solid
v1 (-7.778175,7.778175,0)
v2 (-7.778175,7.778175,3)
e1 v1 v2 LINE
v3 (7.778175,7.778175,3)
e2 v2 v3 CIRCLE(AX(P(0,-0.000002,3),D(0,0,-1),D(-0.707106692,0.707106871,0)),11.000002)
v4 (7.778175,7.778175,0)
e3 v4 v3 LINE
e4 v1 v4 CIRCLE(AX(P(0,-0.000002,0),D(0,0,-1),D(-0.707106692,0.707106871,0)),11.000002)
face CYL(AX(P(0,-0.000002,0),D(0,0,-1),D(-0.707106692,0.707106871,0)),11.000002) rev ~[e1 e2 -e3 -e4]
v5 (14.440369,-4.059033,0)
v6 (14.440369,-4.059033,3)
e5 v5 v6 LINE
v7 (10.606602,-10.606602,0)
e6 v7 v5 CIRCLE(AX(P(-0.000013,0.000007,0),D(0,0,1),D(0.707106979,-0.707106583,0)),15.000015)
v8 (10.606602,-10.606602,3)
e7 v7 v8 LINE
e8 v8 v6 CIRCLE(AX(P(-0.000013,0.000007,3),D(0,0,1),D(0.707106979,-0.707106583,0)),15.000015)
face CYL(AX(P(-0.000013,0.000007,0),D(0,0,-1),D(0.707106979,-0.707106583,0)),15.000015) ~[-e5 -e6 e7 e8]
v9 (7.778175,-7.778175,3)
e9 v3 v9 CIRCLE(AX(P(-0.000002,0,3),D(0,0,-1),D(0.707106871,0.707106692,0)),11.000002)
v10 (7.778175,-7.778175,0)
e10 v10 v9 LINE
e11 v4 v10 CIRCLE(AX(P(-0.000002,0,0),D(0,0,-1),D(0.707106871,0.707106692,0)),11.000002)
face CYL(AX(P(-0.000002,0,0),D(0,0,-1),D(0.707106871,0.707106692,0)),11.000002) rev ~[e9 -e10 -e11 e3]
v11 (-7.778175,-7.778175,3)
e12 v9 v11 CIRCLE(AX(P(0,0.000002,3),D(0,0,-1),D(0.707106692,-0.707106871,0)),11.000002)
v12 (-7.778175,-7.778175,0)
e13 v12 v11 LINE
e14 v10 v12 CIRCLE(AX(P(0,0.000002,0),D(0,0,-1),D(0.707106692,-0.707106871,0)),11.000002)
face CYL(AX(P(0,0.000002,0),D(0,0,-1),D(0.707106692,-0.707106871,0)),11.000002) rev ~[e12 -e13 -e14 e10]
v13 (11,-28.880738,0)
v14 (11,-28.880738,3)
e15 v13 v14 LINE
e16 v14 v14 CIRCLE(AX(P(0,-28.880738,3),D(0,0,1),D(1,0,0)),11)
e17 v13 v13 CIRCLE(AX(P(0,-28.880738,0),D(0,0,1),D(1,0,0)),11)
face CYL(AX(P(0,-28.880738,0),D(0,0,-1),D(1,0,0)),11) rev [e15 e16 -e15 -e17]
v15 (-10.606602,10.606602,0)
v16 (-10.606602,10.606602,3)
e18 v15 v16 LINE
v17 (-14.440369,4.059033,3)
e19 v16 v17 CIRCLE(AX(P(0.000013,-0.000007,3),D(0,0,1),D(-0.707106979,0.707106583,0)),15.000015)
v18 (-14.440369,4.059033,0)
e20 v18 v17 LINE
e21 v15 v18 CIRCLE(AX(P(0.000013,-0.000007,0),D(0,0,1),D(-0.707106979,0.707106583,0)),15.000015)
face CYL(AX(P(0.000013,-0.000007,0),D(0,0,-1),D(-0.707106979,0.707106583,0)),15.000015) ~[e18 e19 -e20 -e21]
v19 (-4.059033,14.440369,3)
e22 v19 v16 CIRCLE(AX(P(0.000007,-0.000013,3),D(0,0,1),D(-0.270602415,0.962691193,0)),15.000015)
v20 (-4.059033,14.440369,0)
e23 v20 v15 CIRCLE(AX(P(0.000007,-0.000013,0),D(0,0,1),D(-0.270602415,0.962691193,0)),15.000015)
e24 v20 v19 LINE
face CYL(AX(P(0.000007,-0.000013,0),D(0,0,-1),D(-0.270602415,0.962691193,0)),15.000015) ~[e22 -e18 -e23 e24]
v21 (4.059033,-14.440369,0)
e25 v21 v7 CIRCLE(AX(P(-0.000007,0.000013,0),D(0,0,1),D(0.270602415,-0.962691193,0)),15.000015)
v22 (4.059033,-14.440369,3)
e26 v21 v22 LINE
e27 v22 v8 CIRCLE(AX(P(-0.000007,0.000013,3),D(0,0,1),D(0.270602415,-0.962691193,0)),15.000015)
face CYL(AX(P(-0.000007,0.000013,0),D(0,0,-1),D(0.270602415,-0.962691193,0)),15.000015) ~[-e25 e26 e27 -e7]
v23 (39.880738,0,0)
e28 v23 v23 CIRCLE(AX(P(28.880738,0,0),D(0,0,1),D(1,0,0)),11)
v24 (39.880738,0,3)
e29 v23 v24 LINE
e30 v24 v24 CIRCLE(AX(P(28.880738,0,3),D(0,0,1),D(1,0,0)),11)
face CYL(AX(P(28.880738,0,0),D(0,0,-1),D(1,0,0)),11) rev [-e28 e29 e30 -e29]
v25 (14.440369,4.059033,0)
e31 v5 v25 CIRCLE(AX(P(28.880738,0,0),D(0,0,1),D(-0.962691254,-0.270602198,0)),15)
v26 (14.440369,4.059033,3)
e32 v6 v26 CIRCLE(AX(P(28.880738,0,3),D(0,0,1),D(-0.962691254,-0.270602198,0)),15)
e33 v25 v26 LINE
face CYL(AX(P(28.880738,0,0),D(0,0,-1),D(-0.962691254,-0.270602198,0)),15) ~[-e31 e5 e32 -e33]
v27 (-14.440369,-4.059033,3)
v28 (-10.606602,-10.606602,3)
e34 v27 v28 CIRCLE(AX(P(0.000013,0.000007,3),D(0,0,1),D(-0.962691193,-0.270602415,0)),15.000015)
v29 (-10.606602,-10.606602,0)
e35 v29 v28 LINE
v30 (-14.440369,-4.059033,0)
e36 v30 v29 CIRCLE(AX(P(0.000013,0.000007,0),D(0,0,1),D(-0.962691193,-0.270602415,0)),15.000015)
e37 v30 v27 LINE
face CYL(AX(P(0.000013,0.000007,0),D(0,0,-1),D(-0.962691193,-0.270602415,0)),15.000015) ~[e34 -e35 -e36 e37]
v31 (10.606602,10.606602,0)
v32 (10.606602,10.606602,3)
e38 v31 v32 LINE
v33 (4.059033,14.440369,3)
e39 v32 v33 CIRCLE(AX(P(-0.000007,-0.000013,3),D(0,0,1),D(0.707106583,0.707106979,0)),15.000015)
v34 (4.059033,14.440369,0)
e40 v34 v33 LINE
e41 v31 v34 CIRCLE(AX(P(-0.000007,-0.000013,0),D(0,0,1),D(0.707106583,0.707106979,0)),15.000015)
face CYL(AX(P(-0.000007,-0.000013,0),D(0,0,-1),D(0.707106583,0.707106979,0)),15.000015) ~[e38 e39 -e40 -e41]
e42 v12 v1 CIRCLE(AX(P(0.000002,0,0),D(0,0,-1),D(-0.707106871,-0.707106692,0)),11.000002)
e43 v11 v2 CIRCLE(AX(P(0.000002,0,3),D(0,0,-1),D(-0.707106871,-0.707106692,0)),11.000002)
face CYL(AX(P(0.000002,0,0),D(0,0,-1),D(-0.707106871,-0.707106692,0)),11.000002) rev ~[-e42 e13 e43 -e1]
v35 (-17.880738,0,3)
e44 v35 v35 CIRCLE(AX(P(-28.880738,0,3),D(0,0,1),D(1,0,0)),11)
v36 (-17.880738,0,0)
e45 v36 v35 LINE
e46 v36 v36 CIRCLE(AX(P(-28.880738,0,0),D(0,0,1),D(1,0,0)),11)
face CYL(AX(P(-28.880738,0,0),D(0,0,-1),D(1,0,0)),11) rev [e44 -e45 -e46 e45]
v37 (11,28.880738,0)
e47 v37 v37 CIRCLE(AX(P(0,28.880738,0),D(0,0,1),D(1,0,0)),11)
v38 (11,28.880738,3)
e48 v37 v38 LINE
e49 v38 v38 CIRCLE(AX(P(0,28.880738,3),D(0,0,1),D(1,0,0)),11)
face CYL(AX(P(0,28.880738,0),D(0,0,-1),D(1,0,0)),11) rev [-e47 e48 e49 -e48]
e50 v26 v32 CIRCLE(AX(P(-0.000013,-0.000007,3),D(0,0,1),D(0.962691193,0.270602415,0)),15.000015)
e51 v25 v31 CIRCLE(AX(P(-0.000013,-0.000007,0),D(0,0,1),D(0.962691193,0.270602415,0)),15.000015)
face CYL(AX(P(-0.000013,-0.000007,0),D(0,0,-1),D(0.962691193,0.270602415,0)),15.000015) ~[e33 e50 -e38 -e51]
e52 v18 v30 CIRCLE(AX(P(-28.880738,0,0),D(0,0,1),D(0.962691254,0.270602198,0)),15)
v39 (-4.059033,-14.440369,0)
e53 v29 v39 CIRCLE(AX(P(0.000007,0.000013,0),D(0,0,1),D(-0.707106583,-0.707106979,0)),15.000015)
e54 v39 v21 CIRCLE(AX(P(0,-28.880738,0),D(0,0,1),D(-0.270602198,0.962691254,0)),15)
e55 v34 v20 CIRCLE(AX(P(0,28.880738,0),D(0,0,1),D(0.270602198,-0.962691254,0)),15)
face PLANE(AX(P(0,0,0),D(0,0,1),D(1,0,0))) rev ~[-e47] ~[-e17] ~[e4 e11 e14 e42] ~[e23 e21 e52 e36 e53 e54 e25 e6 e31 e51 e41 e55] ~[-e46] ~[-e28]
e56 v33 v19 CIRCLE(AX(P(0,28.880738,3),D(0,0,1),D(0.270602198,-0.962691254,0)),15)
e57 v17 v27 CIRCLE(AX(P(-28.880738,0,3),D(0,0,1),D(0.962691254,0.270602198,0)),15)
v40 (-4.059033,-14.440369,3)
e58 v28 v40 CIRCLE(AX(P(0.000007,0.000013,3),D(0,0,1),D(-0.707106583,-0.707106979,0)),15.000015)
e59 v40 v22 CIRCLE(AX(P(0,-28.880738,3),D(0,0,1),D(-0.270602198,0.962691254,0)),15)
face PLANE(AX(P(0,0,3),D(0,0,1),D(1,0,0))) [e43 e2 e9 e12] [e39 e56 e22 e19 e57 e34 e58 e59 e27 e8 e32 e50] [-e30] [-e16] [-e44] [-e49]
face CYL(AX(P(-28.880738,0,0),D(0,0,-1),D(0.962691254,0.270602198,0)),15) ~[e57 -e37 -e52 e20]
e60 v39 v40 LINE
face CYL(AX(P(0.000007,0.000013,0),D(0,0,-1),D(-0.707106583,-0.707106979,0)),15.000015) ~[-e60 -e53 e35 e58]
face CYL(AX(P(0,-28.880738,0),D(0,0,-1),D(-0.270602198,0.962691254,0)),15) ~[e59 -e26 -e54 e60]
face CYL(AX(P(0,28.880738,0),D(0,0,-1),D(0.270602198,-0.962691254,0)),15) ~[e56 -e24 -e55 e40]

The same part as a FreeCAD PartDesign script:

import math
import FreeCAD as App
import Part
import Sketcher
from FreeCAD import Vector

doc = App.newDocument("Part")
params = doc.addObject("Spreadsheet::Sheet", "Params")
for row, (alias, value) in enumerate([
    ("sketch1_diameter", "22 mm"),
    ("sketch1_radius", "15 mm"),
    ("pad1_length", "3 mm"),
], start=1):
    params.set(f"A{row}", alias)
    params.set(f"B{row}", "=" + value)
    params.setAlias(f"B{row}", alias)

body = doc.addObject("PartDesign::Body", "Body")

sketch1 = body.newObject("Sketcher::SketchObject", "Sketch")
sketch1.AttachmentSupport = (doc.getObject("XY_Plane"), [""])
sketch1.MapMode = "FlatFace"
sketch1.addGeometry(Part.ArcOfCircle(Part.Circle(Vector(0, 28.880738, 0), Vector(0, 0, 1), 15), math.radians(-74.299896), math.radians(254.299896)), False)
sketch1.addGeometry(Part.ArcOfCircle(Part.Circle(Vector(0.000007, -0.000013, 0), Vector(0, 0, 1), 15.000015), math.radians(105.700117), math.radians(134.999984)), False)
sketch1.addGeometry(Part.ArcOfCircle(Part.Circle(Vector(0.000013, -0.000007, 0), Vector(0, 0, 1), 15.000015), math.radians(135.000016), math.radians(164.299883)), False)
sketch1.addGeometry(Part.ArcOfCircle(Part.Circle(Vector(-28.880738, 0, 0), Vector(0, 0, 1), 15), math.radians(15.700104), math.radians(344.299896)), False)
sketch1.addGeometry(Part.ArcOfCircle(Part.Circle(Vector(0.000013, 0.000007, 0), Vector(0, 0, 1), 15.000015), math.radians(-164.299883), math.radians(-135.000016)), False)
sketch1.addGeometry(Part.ArcOfCircle(Part.Circle(Vector(0.000007, 0.000013, 0), Vector(0, 0, 1), 15.000015), math.radians(-134.999984), math.radians(-105.700117)), False)
sketch1.addGeometry(Part.ArcOfCircle(Part.Circle(Vector(0, -28.880738, 0), Vector(0, 0, 1), 15), math.radians(105.700104), math.radians(434.299896)), False)
sketch1.addGeometry(Part.ArcOfCircle(Part.Circle(Vector(-0.000007, 0.000013, 0), Vector(0, 0, 1), 15.000015), math.radians(-74.299883), math.radians(-45.000016)), False)
sketch1.addGeometry(Part.ArcOfCircle(Part.Circle(Vector(-0.000013, 0.000007, 0), Vector(0, 0, 1), 15.000015), math.radians(-44.999984), math.radians(-15.700117)), False)
sketch1.addGeometry(Part.ArcOfCircle(Part.Circle(Vector(28.880738, 0, 0), Vector(0, 0, 1), 15), math.radians(-164.299896), math.radians(164.299896)), False)
sketch1.addGeometry(Part.ArcOfCircle(Part.Circle(Vector(-0.000013, -0.000007, 0), Vector(0, 0, 1), 15.000015), math.radians(15.700117), math.radians(44.999984)), False)
sketch1.addGeometry(Part.ArcOfCircle(Part.Circle(Vector(-0.000007, -0.000013, 0), Vector(0, 0, 1), 15.000015), math.radians(45.000016), math.radians(74.299883)), False)
sketch1.addGeometry(Part.Circle(Vector(0, -28.880738, 0), Vector(0, 0, 1), 11), False)
sketch1.addGeometry(Part.Circle(Vector(-28.880738, 0, 0), Vector(0, 0, 1), 11), False)
sketch1.addGeometry(Part.ArcOfCircle(Part.Circle(Vector(0.000002, 0, 0), Vector(0, 0, 1), 11.000002), math.radians(135.000007), math.radians(224.999993)), False)
sketch1.addGeometry(Part.ArcOfCircle(Part.Circle(Vector(0, -0.000002, 0), Vector(0, 0, 1), 11.000002), math.radians(45.000007), math.radians(134.999993)), False)
sketch1.addGeometry(Part.ArcOfCircle(Part.Circle(Vector(-0.000002, 0, 0), Vector(0, 0, 1), 11.000002), math.radians(-44.999993), math.radians(44.999993)), False)
sketch1.addGeometry(Part.ArcOfCircle(Part.Circle(Vector(0, 0.000002, 0), Vector(0, 0, 1), 11.000002), math.radians(-134.999993), math.radians(-45.000007)), False)
sketch1.addGeometry(Part.Circle(Vector(28.880738, 0, 0), Vector(0, 0, 1), 11), False)
sketch1.addGeometry(Part.Circle(Vector(0, 28.880738, 0), Vector(0, 0, 1), 11), False)
sketch1.addConstraint(Sketcher.Constraint("Coincident", 0, 2, 1, 1))
sketch1.addConstraint(Sketcher.Constraint("Tangent", 1, 2, 2, 1))
sketch1.addConstraint(Sketcher.Constraint("Coincident", 2, 2, 3, 1))
sketch1.addConstraint(Sketcher.Constraint("Coincident", 3, 2, 4, 1))
sketch1.addConstraint(Sketcher.Constraint("Tangent", 4, 2, 5, 1))
sketch1.addConstraint(Sketcher.Constraint("Coincident", 5, 2, 6, 1))
sketch1.addConstraint(Sketcher.Constraint("Coincident", 6, 2, 7, 1))
sketch1.addConstraint(Sketcher.Constraint("Tangent", 7, 2, 8, 1))
sketch1.addConstraint(Sketcher.Constraint("Coincident", 8, 2, 9, 1))
sketch1.addConstraint(Sketcher.Constraint("Coincident", 9, 2, 10, 1))
sketch1.addConstraint(Sketcher.Constraint("Tangent", 10, 2, 11, 1))
sketch1.addConstraint(Sketcher.Constraint("Coincident", 11, 2, 0, 1))
sketch1.addConstraint(Sketcher.Constraint("Tangent", 14, 1, 15, 2))
sketch1.addConstraint(Sketcher.Constraint("Tangent", 15, 1, 16, 2))
sketch1.addConstraint(Sketcher.Constraint("Tangent", 16, 1, 17, 2))
sketch1.addConstraint(Sketcher.Constraint("Tangent", 17, 1, 14, 2))
sketch1.addConstraint(Sketcher.Constraint("Coincident", 14, 3, -1, 1))
sketch1.addConstraint(Sketcher.Constraint("Coincident", 12, 3, 6, 3))
sketch1.addConstraint(Sketcher.Constraint("Coincident", 13, 3, 3, 3))
sketch1.addConstraint(Sketcher.Constraint("Coincident", 18, 3, 9, 3))
sketch1.addConstraint(Sketcher.Constraint("Coincident", 19, 3, 0, 3))
sketch1.addConstraint(Sketcher.Constraint("Equal", 1, 2))
sketch1.addConstraint(Sketcher.Constraint("Equal", 0, 3))
sketch1.addConstraint(Sketcher.Constraint("Equal", 2, 4))
sketch1.addConstraint(Sketcher.Constraint("Equal", 4, 5))
sketch1.addConstraint(Sketcher.Constraint("Equal", 3, 6))
sketch1.addConstraint(Sketcher.Constraint("Equal", 5, 7))
sketch1.addConstraint(Sketcher.Constraint("Equal", 7, 8))
sketch1.addConstraint(Sketcher.Constraint("Equal", 6, 9))
sketch1.addConstraint(Sketcher.Constraint("Equal", 8, 10))
sketch1.addConstraint(Sketcher.Constraint("Equal", 10, 11))
sketch1.addConstraint(Sketcher.Constraint("Equal", 12, 13))
sketch1.addConstraint(Sketcher.Constraint("Equal", 13, 14))
sketch1.addConstraint(Sketcher.Constraint("Equal", 14, 15))
sketch1.addConstraint(Sketcher.Constraint("Equal", 17, 18))
sketch1.addConstraint(Sketcher.Constraint("Equal", 18, 19))
sketch1.addConstraint(Sketcher.Constraint("Symmetric", 0, 3, 6, 3, -1, 1))
sketch1.addConstraint(Sketcher.Constraint("Symmetric", 1, 3, 7, 3, -1, 1))
sketch1.addConstraint(Sketcher.Constraint("Symmetric", 3, 3, 9, 3, -1, 1))
sketch1.addConstraint(Sketcher.Constraint("Symmetric", 4, 3, 10, 3, -1, 1))
sketch1.addConstraint(Sketcher.Constraint("Symmetric", 4, 3, 7, 3, -2))
sketch1.addConstraint(Sketcher.Constraint("PointOnObject", 0, 3, -2))
sketch1.addConstraint(Sketcher.Constraint("PointOnObject", 3, 3, -1))
sketch1.addConstraint(Sketcher.Constraint("Horizontal", 4, 2, 7, 2))
sketch1.addConstraint(Sketcher.Constraint("Horizontal", 1, 2, 10, 2))
sketch1.addConstraint(Sketcher.Constraint("Horizontal", 14, 1, 15, 1))
sketch1.addConstraint(Sketcher.Constraint("Horizontal", 16, 1, 17, 1))
sketch1.addConstraint(Sketcher.Constraint("Vertical", 1, 2, 4, 2))
sketch1.addConstraint(Sketcher.Constraint("Vertical", 15, 1, 16, 1))
sketch1.addConstraint(Sketcher.Constraint("Diameter", 12, 22.0))
sketch1.addConstraint(Sketcher.Constraint("Radius", 0, 15.0))
sketch1.addConstraint(Sketcher.Constraint("Radius", 1, 15.000015))
sketch1.addConstraint(Sketcher.Constraint("DistanceX", 1, 2, -1, 1, 10.606602))
sketch1.addConstraint(Sketcher.Constraint("DistanceY", -1, 1, 1, 2, 10.606602))
sketch1.addConstraint(Sketcher.Constraint("DistanceY", 12, 3, -1, 1, 28.880738))
sketch1.addConstraint(Sketcher.Constraint("DistanceX", 13, 3, -1, 1, 28.880738))
sketch1.addConstraint(Sketcher.Constraint("DistanceY", -1, 1, 0, 2, 14.440369))
sketch1.addConstraint(Sketcher.Constraint("DistanceX", 14, 1, 0, 2, 3.719142))
sketch1.setExpression("Constraints[49]", "Params.sketch1_diameter")
sketch1.setExpression("Constraints[50]", "Params.sketch1_radius")
pad1 = body.newObject("PartDesign::Pad", "Pad")
pad1.Profile = sketch1
pad1.setExpression("Length", "Params.pad1_length")

doc.recompute()
